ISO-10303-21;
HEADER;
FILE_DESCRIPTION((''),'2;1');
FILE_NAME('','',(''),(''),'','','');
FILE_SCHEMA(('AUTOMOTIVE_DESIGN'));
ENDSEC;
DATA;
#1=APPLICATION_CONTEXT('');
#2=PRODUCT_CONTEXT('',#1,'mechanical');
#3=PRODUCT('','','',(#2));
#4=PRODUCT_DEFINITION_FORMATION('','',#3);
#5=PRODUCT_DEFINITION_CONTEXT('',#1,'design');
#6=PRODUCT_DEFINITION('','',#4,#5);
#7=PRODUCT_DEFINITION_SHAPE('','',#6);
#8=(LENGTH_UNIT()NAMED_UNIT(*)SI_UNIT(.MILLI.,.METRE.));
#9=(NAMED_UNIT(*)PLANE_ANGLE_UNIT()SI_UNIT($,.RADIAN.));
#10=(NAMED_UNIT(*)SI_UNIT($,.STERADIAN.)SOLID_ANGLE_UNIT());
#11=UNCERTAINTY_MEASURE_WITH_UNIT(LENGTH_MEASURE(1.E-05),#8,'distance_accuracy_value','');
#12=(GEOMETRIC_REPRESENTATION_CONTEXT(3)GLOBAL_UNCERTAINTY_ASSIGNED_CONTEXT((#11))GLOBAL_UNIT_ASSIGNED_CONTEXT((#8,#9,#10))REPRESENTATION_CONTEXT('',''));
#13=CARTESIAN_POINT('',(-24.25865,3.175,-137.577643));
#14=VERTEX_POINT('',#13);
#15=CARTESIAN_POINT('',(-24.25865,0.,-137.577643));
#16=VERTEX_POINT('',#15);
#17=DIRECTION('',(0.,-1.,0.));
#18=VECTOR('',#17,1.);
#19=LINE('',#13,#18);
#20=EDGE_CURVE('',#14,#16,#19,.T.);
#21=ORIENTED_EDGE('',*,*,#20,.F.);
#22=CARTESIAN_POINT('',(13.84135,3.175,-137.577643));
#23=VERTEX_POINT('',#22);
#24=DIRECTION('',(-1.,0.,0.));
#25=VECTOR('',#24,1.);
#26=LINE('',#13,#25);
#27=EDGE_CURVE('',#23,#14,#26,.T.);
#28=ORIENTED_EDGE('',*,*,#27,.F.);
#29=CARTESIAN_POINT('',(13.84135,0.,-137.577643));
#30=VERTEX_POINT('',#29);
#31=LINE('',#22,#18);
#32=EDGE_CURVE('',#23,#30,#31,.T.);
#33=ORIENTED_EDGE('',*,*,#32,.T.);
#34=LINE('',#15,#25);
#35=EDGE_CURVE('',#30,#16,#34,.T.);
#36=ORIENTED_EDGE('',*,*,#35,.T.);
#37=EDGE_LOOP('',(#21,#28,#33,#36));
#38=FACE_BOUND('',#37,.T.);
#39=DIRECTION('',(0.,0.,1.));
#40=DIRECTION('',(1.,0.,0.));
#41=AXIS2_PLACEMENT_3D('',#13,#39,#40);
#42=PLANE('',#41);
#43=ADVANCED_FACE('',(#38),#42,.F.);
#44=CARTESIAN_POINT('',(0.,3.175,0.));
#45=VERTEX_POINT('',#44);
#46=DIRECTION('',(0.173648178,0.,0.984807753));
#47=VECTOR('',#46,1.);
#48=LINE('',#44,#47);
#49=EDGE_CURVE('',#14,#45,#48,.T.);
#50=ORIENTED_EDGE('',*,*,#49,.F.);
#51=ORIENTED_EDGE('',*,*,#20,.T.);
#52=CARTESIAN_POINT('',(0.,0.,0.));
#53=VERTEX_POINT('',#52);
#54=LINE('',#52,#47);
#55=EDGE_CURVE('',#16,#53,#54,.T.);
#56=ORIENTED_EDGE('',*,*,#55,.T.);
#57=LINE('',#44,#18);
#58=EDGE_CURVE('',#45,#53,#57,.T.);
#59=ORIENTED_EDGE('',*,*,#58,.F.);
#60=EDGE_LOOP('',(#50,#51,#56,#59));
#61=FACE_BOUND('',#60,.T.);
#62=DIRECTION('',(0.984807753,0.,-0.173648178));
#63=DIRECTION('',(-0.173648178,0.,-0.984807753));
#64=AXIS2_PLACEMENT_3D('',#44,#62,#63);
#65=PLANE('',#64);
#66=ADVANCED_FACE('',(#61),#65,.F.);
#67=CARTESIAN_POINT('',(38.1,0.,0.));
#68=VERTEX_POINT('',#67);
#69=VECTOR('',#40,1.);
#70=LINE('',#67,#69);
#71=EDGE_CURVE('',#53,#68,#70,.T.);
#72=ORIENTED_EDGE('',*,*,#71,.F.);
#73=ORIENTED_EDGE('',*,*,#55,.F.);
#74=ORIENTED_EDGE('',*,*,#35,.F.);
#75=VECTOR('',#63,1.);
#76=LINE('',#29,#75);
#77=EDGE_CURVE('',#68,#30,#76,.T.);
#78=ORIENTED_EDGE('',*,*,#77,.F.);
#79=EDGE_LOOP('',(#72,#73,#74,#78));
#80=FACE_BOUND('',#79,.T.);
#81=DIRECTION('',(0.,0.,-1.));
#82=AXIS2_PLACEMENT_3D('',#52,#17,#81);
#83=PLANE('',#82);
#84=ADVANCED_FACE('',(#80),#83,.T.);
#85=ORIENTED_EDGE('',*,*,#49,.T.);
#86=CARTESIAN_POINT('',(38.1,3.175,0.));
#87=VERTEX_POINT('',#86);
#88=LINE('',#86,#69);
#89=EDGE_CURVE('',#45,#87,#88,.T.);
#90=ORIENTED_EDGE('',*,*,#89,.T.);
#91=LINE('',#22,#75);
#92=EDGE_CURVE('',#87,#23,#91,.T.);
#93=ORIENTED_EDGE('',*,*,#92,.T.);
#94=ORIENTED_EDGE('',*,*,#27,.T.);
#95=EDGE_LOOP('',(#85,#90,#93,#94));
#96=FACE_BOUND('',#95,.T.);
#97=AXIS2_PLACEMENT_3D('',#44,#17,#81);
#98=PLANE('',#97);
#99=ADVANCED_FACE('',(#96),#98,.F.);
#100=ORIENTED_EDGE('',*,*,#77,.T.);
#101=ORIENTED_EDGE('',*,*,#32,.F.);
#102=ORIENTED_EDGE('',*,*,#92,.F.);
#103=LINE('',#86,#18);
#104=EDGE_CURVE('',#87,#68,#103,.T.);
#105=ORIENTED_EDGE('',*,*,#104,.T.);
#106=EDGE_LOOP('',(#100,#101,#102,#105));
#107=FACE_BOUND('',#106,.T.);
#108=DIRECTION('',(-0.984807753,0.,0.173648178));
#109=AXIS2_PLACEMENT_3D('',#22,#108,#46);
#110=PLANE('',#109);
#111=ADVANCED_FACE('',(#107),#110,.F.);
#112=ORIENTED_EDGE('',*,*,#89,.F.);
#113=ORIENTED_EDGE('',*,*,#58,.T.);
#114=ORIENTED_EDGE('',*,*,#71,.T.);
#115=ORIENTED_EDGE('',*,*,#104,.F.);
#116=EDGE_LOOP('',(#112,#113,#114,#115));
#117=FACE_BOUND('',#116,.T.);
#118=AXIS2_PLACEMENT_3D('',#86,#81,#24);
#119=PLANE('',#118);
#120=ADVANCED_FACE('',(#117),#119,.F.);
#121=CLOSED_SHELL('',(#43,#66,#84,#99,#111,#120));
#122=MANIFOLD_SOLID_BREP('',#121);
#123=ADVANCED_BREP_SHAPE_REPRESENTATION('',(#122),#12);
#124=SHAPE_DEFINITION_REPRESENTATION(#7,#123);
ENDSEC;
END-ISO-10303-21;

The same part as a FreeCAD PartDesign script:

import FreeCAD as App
import Part
import Sketcher

V = App.Vector
Q = App.Units.Quantity


def add_polygon(sketch, points):
    """Adds a closed chain of lines whose ends are joined by coincident constraints."""
    first, n = sketch.GeometryCount, len(points)
    for a, b in zip(points, points[1:] + points[:1]):
        sketch.addGeometry(Part.LineSegment(App.Vector(*a, 0), App.Vector(*b, 0)), False)
    for i in range(n):
        sketch.addConstraint(Sketcher.Constraint("Coincident", first + i, 2, first + (i + 1) % n, 1))

doc = App.newDocument("Part")
body = doc.addObject("PartDesign::Body", "Body")

# Sketch on XZ plane
sketch1 = body.newObject("Sketcher::SketchObject", "Sketch")
sketch1.AttachmentSupport = (doc.getObject("XZ_Plane"), [""])
sketch1.MapMode = "FlatFace"
add_polygon(sketch1, [(-24.25865, -137.577643), (0, 0), (38.1, 0), (13.84135, -137.577643)])  # lines 0-3
sketch1.addConstraint([
    Sketcher.Constraint("Horizontal", 1),
    Sketcher.Constraint("Horizontal", 3),
    Sketcher.Constraint("Coincident", 0, 2, -1, 1),
    Sketcher.Constraint("Parallel", 0, 2),
    Sketcher.Constraint("DistanceX", 1, 1, 1, 2, Q("1.5 in")),
    Sketcher.Constraint("Angle", 0, Q("80 deg")),
    Sketcher.Constraint("Distance", 0, Q("5.5 in")),
])
pad1 = body.newObject("PartDesign::Pad", "Pad")
pad1.Profile = sketch1
pad1.Length = Q("0.125 in")
pad1.Reversed = True

doc.recompute()
